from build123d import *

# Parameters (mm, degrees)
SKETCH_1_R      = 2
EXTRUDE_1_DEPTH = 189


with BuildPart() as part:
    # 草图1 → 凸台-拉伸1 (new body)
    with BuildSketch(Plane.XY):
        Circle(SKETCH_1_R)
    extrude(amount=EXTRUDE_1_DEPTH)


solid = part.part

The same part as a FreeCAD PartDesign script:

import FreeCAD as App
import Part
import Sketcher
from FreeCAD import Vector
Q = App.Units.Quantity

doc = App.newDocument("Part")
body = doc.addObject("PartDesign::Body", "Body")

sketch1 = body.newObject("Sketcher::SketchObject", "Sketch")
sketch1.AttachmentSupport = (doc.getObject("XY_Plane"), [""])
sketch1.MapMode = "FlatFace"
sketch1.addGeometry(Part.Circle(Vector(0, 0, 0), Vector(0, 0, 1), 2), False)
sketch1.addConstraint(Sketcher.Constraint("Coincident", 0, 3, -1, 1))
sketch1.addConstraint(Sketcher.Constraint("Diameter", 0, Q("4 mm")))
pad1 = body.newObject("PartDesign::Pad", "Pad")
pad1.Profile = sketch1
pad1.Length = 189

doc.recompute()
